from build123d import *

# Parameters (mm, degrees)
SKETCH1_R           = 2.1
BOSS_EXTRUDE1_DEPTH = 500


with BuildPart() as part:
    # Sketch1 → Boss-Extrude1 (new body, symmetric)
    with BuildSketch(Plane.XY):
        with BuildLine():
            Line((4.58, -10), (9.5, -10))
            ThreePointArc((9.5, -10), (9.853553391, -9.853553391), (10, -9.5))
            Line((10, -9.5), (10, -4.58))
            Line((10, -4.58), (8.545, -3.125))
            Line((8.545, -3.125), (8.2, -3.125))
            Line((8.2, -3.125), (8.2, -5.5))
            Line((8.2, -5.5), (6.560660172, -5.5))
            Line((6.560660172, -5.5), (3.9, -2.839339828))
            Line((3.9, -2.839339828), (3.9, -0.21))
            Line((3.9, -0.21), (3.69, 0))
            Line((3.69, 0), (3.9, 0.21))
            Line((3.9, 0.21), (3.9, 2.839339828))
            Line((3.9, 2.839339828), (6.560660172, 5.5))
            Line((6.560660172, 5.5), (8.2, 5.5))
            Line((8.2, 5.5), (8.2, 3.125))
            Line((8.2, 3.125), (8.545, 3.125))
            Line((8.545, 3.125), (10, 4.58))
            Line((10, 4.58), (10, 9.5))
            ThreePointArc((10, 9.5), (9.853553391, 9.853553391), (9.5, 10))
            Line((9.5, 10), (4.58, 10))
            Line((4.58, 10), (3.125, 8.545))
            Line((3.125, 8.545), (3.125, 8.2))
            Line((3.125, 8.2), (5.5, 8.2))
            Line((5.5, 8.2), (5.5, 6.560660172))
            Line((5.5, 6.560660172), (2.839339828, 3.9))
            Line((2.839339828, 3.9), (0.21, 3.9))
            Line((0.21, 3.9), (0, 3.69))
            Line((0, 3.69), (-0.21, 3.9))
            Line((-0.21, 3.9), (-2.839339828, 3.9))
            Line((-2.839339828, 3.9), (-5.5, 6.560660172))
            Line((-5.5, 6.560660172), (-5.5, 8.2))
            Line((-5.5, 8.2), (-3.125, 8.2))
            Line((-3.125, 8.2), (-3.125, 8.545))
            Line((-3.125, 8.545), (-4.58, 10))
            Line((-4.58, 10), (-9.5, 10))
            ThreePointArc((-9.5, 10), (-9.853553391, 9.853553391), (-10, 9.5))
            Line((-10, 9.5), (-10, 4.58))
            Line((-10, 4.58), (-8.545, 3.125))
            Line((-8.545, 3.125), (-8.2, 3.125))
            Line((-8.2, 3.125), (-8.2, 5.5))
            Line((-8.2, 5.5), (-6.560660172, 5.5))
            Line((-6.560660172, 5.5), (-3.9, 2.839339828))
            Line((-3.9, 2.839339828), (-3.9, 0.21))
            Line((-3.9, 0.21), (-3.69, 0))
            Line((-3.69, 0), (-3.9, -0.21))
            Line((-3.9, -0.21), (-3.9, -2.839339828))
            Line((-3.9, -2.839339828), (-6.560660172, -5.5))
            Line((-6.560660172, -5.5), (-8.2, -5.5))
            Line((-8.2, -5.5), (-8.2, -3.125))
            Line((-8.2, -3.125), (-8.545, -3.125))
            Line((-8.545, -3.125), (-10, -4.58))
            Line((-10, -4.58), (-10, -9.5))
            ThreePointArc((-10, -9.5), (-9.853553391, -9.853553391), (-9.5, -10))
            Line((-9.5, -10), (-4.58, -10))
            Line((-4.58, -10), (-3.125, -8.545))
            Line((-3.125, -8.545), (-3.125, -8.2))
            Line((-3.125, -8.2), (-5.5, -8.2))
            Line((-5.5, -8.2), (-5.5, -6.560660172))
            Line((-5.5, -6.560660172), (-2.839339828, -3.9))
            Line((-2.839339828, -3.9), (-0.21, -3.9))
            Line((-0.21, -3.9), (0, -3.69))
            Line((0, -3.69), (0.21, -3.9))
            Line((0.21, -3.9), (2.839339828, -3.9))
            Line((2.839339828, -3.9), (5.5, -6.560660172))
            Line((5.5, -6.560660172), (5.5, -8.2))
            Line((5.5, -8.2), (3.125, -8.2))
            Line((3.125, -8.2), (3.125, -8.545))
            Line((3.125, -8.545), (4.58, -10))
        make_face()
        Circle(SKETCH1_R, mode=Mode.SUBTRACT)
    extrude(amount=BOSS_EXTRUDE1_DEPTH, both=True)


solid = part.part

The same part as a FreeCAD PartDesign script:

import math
import FreeCAD as App
import Part
import Sketcher

V = App.Vector
Q = App.Units.Quantity

doc = App.newDocument("Part")
body = doc.addObject("PartDesign::Body", "Body")

# Sketch on XY plane
sketch1 = body.newObject("Sketcher::SketchObject", "Sketch")
sketch1.AttachmentSupport = (doc.getObject("XY_Plane"), [""])
sketch1.MapMode = "FlatFace"
sketch1.addGeometry([
    Part.LineSegment(V(4.58, -10, 0), V(9.5, -10, 0)),  # 0
    Part.ArcOfCircle(Part.Circle(V(9.5, -9.5, 0), V(0, 0, 1), 0.5), math.radians(-90), math.radians(0)),  # 1
    Part.LineSegment(V(10, -9.5, 0), V(10, -4.58, 0)),  # 2
    Part.LineSegment(V(10, -4.58, 0), V(8.54, -3.12, 0)),  # 3
    Part.LineSegment(V(8.54, -3.12, 0), V(8.2, -3.12, 0)),  # 4
    Part.LineSegment(V(8.2, -3.12, 0), V(8.2, -5.5, 0)),  # 5
    Part.LineSegment(V(8.2, -5.5, 0), V(6.56, -5.5, 0)),  # 6
    Part.LineSegment(V(6.56, -5.5, 0), V(3.9, -2.84, 0)),  # 7
    Part.LineSegment(V(3.9, -2.84, 0), V(3.9, -0.21, 0)),  # 8
    Part.LineSegment(V(3.9, -0.21, 0), V(3.69, 0, 0)),  # 9
    Part.LineSegment(V(3.69, 0, 0), V(3.9, 0.21, 0)),  # 10
    Part.LineSegment(V(3.9, 0.21, 0), V(3.9, 2.84, 0)),  # 11
    Part.LineSegment(V(3.9, 2.84, 0), V(6.56, 5.5, 0)),  # 12
    Part.LineSegment(V(6.56, 5.5, 0), V(8.2, 5.5, 0)),  # 13
    Part.LineSegment(V(8.2, 5.5, 0), V(8.2, 3.12, 0)),  # 14
    Part.LineSegment(V(8.2, 3.12, 0), V(8.54, 3.12, 0)),  # 15
    Part.LineSegment(V(8.54, 3.12, 0), V(10, 4.58, 0)),  # 16
    Part.LineSegment(V(10, 4.58, 0), V(10, 9.5, 0)),  # 17
    Part.ArcOfCircle(Part.Circle(V(9.5, 9.5, 0), V(0, 0, 1), 0.5), math.radians(0), math.radians(90)),  # 18
    Part.LineSegment(V(9.5, 10, 0), V(4.58, 10, 0)),  # 19
    Part.LineSegment(V(4.58, 10, 0), V(3.12, 8.54, 0)),  # 20
    Part.LineSegment(V(3.12, 8.54, 0), V(3.12, 8.2, 0)),  # 21
    Part.LineSegment(V(3.12, 8.2, 0), V(5.5, 8.2, 0)),  # 22
    Part.LineSegment(V(5.5, 8.2, 0), V(5.5, 6.56, 0)),  # 23
    Part.LineSegment(V(5.5, 6.56, 0), V(2.84, 3.9, 0)),  # 24
    Part.LineSegment(V(2.84, 3.9, 0), V(0.21, 3.9, 0)),  # 25
    Part.LineSegment(V(0.21, 3.9, 0), V(0, 3.69, 0)),  # 26
    Part.LineSegment(V(0, 3.69, 0), V(-0.21, 3.9, 0)),  # 27
    Part.LineSegment(V(-0.21, 3.9, 0), V(-2.84, 3.9, 0)),  # 28
    Part.LineSegment(V(-2.84, 3.9, 0), V(-5.5, 6.56, 0)),  # 29
    Part.LineSegment(V(-5.5, 6.56, 0), V(-5.5, 8.2, 0)),  # 30
    Part.LineSegment(V(-5.5, 8.2, 0), V(-3.12, 8.2, 0)),  # 31
    Part.LineSegment(V(-3.12, 8.2, 0), V(-3.12, 8.54, 0)),  # 32
    Part.LineSegment(V(-3.12, 8.54, 0), V(-4.58, 10, 0)),  # 33
    Part.LineSegment(V(-4.58, 10, 0), V(-9.5, 10, 0)),  # 34
    Part.ArcOfCircle(Part.Circle(V(-9.5, 9.5, 0), V(0, 0, 1), 0.5), math.radians(90), math.radians(180)),  # 35
    Part.LineSegment(V(-10, 9.5, 0), V(-10, 4.58, 0)),  # 36
    Part.LineSegment(V(-10, 4.58, 0), V(-8.54, 3.12, 0)),  # 37
    Part.LineSegment(V(-8.54, 3.12, 0), V(-8.2, 3.12, 0)),  # 38
    Part.LineSegment(V(-8.2, 3.12, 0), V(-8.2, 5.5, 0)),  # 39
    Part.LineSegment(V(-8.2, 5.5, 0), V(-6.56, 5.5, 0)),  # 40
    Part.LineSegment(V(-6.56, 5.5, 0), V(-3.9, 2.84, 0)),  # 41
    Part.LineSegment(V(-3.9, 2.84, 0), V(-3.9, 0.21, 0)),  # 42
    Part.LineSegment(V(-3.9, 0.21, 0), V(-3.69, 0, 0)),  # 43
    Part.LineSegment(V(-3.69, 0, 0), V(-3.9, -0.21, 0)),  # 44
    Part.LineSegment(V(-3.9, -0.21, 0), V(-3.9, -2.84, 0)),  # 45
    Part.LineSegment(V(-3.9, -2.84, 0), V(-6.56, -5.5, 0)),  # 46
    Part.LineSegment(V(-6.56, -5.5, 0), V(-8.2, -5.5, 0)),  # 47
    Part.LineSegment(V(-8.2, -5.5, 0), V(-8.2, -3.12, 0)),  # 48
    Part.LineSegment(V(-8.2, -3.12, 0), V(-8.54, -3.12, 0)),  # 49
    Part.LineSegment(V(-8.54, -3.12, 0), V(-10, -4.58, 0)),  # 50
    Part.LineSegment(V(-10, -4.58, 0), V(-10, -9.5, 0)),  # 51
    Part.ArcOfCircle(Part.Circle(V(-9.5, -9.5, 0), V(0, 0, 1), 0.5), math.radians(180), math.radians(270)),  # 52
    Part.LineSegment(V(-9.5, -10, 0), V(-4.58, -10, 0)),  # 53
    Part.LineSegment(V(-4.58, -10, 0), V(-3.12, -8.54, 0)),  # 54
    Part.LineSegment(V(-3.12, -8.54, 0), V(-3.12, -8.2, 0)),  # 55
    Part.LineSegment(V(-3.12, -8.2, 0), V(-5.5, -8.2, 0)),  # 56
    Part.LineSegment(V(-5.5, -8.2, 0), V(-5.5, -6.56, 0)),  # 57
    Part.LineSegment(V(-5.5, -6.56, 0), V(-2.84, -3.9, 0)),  # 58
    Part.LineSegment(V(-2.84, -3.9, 0), V(-0.21, -3.9, 0)),  # 59
    Part.LineSegment(V(-0.21, -3.9, 0), V(0, -3.69, 0)),  # 60
    Part.LineSegment(V(0, -3.69, 0), V(0.21, -3.9, 0)),  # 61
    Part.LineSegment(V(0.21, -3.9, 0), V(2.84, -3.9, 0)),  # 62
    Part.LineSegment(V(2.84, -3.9, 0), V(5.5, -6.56, 0)),  # 63
    Part.LineSegment(V(5.5, -6.56, 0), V(5.5, -8.2, 0)),  # 64
    Part.LineSegment(V(5.5, -8.2, 0), V(3.12, -8.2, 0)),  # 65
    Part.LineSegment(V(3.12, -8.2, 0), V(3.12, -8.54, 0)),  # 66
    Part.LineSegment(V(3.12, -8.54, 0), V(4.58, -10, 0)),  # 67
    Part.Circle(V(0, 0, 0), V(0, 0, 1), 2.1),  # 68
], False)
sketch1.addConstraint([
    Sketcher.Constraint("Tangent", 0, 2, 1, 1),
    Sketcher.Constraint("Tangent", 1, 2, 2, 1),
    Sketcher.Constraint("Coincident", 2, 2, 3, 1),
    Sketcher.Constraint("Coincident", 3, 2, 4, 1),
    Sketcher.Constraint("Coincident", 4, 2, 5, 1),
    Sketcher.Constraint("Coincident", 5, 2, 6, 1),
    Sketcher.Constraint("Coincident", 6, 2, 7, 1),
    Sketcher.Constraint("Coincident", 7, 2, 8, 1),
    Sketcher.Constraint("Coincident", 8, 2, 9, 1),
    Sketcher.Constraint("Coincident", 9, 2, 10, 1),
    Sketcher.Constraint("Coincident", 10, 2, 11, 1),
    Sketcher.Constraint("Coincident", 11, 2, 12, 1),
    Sketcher.Constraint("Coincident", 12, 2, 13, 1),
    Sketcher.Constraint("Coincident", 13, 2, 14, 1),
    Sketcher.Constraint("Coincident", 14, 2, 15, 1),
    Sketcher.Constraint("Coincident", 15, 2, 16, 1),
    Sketcher.Constraint("Coincident", 16, 2, 17, 1),
    Sketcher.Constraint("Tangent", 17, 2, 18, 1),
    Sketcher.Constraint("Tangent", 18, 2, 19, 1),
    Sketcher.Constraint("Coincident", 19, 2, 20, 1),
    Sketcher.Constraint("Coincident", 20, 2, 21, 1),
    Sketcher.Constraint("Coincident", 21, 2, 22, 1),
    Sketcher.Constraint("Coincident", 22, 2, 23, 1),
    Sketcher.Constraint("Coincident", 23, 2, 24, 1),
    Sketcher.Constraint("Coincident", 24, 2, 25, 1),
    Sketcher.Constraint("Coincident", 25, 2, 26, 1),
    Sketcher.Constraint("Coincident", 26, 2, 27, 1),
    Sketcher.Constraint("Coincident", 27, 2, 28, 1),
    Sketcher.Constraint("Coincident", 28, 2, 29, 1),
    Sketcher.Constraint("Coincident", 29, 2, 30, 1),
    Sketcher.Constraint("Coincident", 30, 2, 31, 1),
    Sketcher.Constraint("Coincident", 31, 2, 32, 1),
    Sketcher.Constraint("Coincident", 32, 2, 33, 1),
    Sketcher.Constraint("Coincident", 33, 2, 34, 1),
    Sketcher.Constraint("Tangent", 34, 2, 35, 1),
    Sketcher.Constraint("Tangent", 35, 2, 36, 1),
    Sketcher.Constraint("Coincident", 36, 2, 37, 1),
    Sketcher.Constraint("Coincident", 37, 2, 38, 1),
    Sketcher.Constraint("Coincident", 38, 2, 39, 1),
    Sketcher.Constraint("Coincident", 39, 2, 40, 1),
    Sketcher.Constraint("Coincident", 40, 2, 41, 1),
    Sketcher.Constraint("Coincident", 41, 2, 42, 1),
    Sketcher.Constraint("Coincident", 42, 2, 43, 1),
    Sketcher.Constraint("Coincident", 43, 2, 44, 1),
    Sketcher.Constraint("Coincident", 44, 2, 45, 1),
    Sketcher.Constraint("Coincident", 45, 2, 46, 1),
    Sketcher.Constraint("Coincident", 46, 2, 47, 1),
    Sketcher.Constraint("Coincident", 47, 2, 48, 1),
    Sketcher.Constraint("Coincident", 48, 2, 49, 1),
    Sketcher.Constraint("Coincident", 49, 2, 50, 1),
    Sketcher.Constraint("Coincident", 50, 2, 51, 1),
    Sketcher.Constraint("Tangent", 51, 2, 52, 1),
    Sketcher.Constraint("Tangent", 52, 2, 53, 1),
    Sketcher.Constraint("Coincident", 53, 2, 54, 1),
    Sketcher.Constraint("Coincident", 54, 2, 55, 1),
    Sketcher.Constraint("Coincident", 55, 2, 56, 1),
    Sketcher.Constraint("Coincident", 56, 2, 57, 1),
    Sketcher.Constraint("Coincident", 57, 2, 58, 1),
    Sketcher.Constraint("Coincident", 58, 2, 59, 1),
    Sketcher.Constraint("Coincident", 59, 2, 60, 1),
    Sketcher.Constraint("Coincident", 60, 2, 61, 1),
    Sketcher.Constraint("Coincident", 61, 2, 62, 1),
    Sketcher.Constraint("Coincident", 62, 2, 63, 1),
    Sketcher.Constraint("Coincident", 63, 2, 64, 1),
    Sketcher.Constraint("Coincident", 64, 2, 65, 1),
    Sketcher.Constraint("Coincident", 65, 2, 66, 1),
    Sketcher.Constraint("Coincident", 66, 2, 67, 1),
    Sketcher.Constraint("Coincident", 67, 2, 0, 1),
    Sketcher.Constraint("Horizontal", 0),
    Sketcher.Constraint("Vertical", 2),
    Sketcher.Constraint("Horizontal", 4),
    Sketcher.Constraint("Vertical", 5),
    Sketcher.Constraint("Horizontal", 6),
    Sketcher.Constraint("Vertical", 8),
    Sketcher.Constraint("Vertical", 11),
    Sketcher.Constraint("Horizontal", 13),
    Sketcher.Constraint("Vertical", 14),
    Sketcher.Constraint("Horizontal", 15),
    Sketcher.Constraint("Vertical", 17),
    Sketcher.Constraint("Horizontal", 19),
    Sketcher.Constraint("Vertical", 21),
    Sketcher.Constraint("Horizontal", 22),
    Sketcher.Constraint("Vertical", 23),
    Sketcher.Constraint("Horizontal", 25),
    Sketcher.Constraint("Horizontal", 28),
    Sketcher.Constraint("Vertical", 30),
    Sketcher.Constraint("Horizontal", 31),
    Sketcher.Constraint("Vertical", 32),
    Sketcher.Constraint("Horizontal", 34),
    Sketcher.Constraint("Vertical", 36),
    Sketcher.Constraint("Horizontal", 38),
    Sketcher.Constraint("Vertical", 39),
    Sketcher.Constraint("Horizontal", 40),
    Sketcher.Constraint("Vertical", 42),
    Sketcher.Constraint("Vertical", 45),
    Sketcher.Constraint("Horizontal", 47),
    Sketcher.Constraint("Vertical", 48),
    Sketcher.Constraint("Horizontal", 49),
    Sketcher.Constraint("Vertical", 51),
    Sketcher.Constraint("Horizontal", 53),
    Sketcher.Constraint("Vertical", 55),
    Sketcher.Constraint("Horizontal", 56),
    Sketcher.Constraint("Vertical", 57),
    Sketcher.Constraint("Horizontal", 59),
    Sketcher.Constraint("Horizontal", 62),
    Sketcher.Constraint("Vertical", 64),
    Sketcher.Constraint("Horizontal", 65),
    Sketcher.Constraint("Vertical", 66),
    Sketcher.Constraint("Coincident", 68, 3, -1, 1),
    Sketcher.Constraint("Equal", 1, 18),
    Sketcher.Constraint("Equal", 18, 35),
    Sketcher.Constraint("Equal", 35, 52),
    Sketcher.Constraint("Symmetric", 1, 3, 35, 3, -1, 1),
    Sketcher.Constraint("Symmetric", 18, 3, 52, 3, -1, 1),
    Sketcher.Constraint("Symmetric", 3, 2, 37, 2, -1, 1),
    Sketcher.Constraint("Symmetric", 5, 2, 39, 2, -1, 1),
    Sketcher.Constraint("Symmetric", 7, 2, 41, 2, -1, 1),
    Sketcher.Constraint("Symmetric", 9, 2, 43, 2, -1, 1),
    Sketcher.Constraint("Symmetric", 10, 2, 44, 2, -1, 1),
    Sketcher.Constraint("Symmetric", 12, 2, 46, 2, -1, 1),
    Sketcher.Constraint("Symmetric", 14, 2, 48, 2, -1, 1),
    Sketcher.Constraint("Symmetric", 20, 2, 54, 2, -1, 1),
    Sketcher.Constraint("Symmetric", 22, 2, 56, 2, -1, 1),
    Sketcher.Constraint("Symmetric", 24, 2, 58, 2, -1, 1),
    Sketcher.Constraint("Symmetric", 26, 2, 60, 2, -1, 1),
    Sketcher.Constraint("Symmetric", 27, 2, 61, 2, -1, 1),
    Sketcher.Constraint("Symmetric", 29, 2, 63, 2, -1, 1),
    Sketcher.Constraint("Symmetric", 31, 2, 65, 2, -1, 1),
    Sketcher.Constraint("Symmetric", 18, 3, 35, 3, -2),
    Sketcher.Constraint("Symmetric", 25, 2, 27, 2, -2),
    Sketcher.Constraint("Symmetric", 23, 2, 29, 2, -2),
    Sketcher.Constraint("Symmetric", 21, 2, 31, 2, -2),
    Sketcher.Constraint("Symmetric", 15, 2, 37, 2, -2),
    Sketcher.Constraint("Symmetric", 13, 2, 39, 2, -2),
    Sketcher.Constraint("Symmetric", 11, 2, 41, 2, -2),
    Sketcher.Constraint("PointOnObject", 9, 2, -1),
    Sketcher.Constraint("PointOnObject", 26, 2, -2),
    Sketcher.Constraint("Parallel", 3, 7),
    Sketcher.Constraint("Parallel", 7, 9),
    Sketcher.Constraint("Perpendicular", 9, 10),
    Sketcher.Constraint("Parallel", 10, 12),
    Sketcher.Constraint("Parallel", 12, 16),
    Sketcher.Constraint("Parallel", 16, 20),
    Sketcher.Constraint("Parallel", 20, 24),
    Sketcher.Constraint("Parallel", 24, 26),
    Sketcher.Constraint("Perpendicular", 26, 27),
    Sketcher.Constraint("Parallel", 27, 29),
    Sketcher.Constraint("Parallel", 29, 33),
    Sketcher.Constraint("Parallel", 33, 37),
    Sketcher.Constraint("Parallel", 37, 41),
    Sketcher.Constraint("Parallel", 41, 43),
    Sketcher.Constraint("Parallel", 44, 46),
    Sketcher.Constraint("Parallel", 46, 50),
    Sketcher.Constraint("Parallel", 50, 54),
    Sketcher.Constraint("Parallel", 54, 58),
    Sketcher.Constraint("Parallel", 58, 60),
    Sketcher.Constraint("Parallel", 61, 63),
    Sketcher.Constraint("Parallel", 63, 67),
    Sketcher.Constraint("Horizontal", 20, 2, 32, 2),
    Sketcher.Constraint("Horizontal", 2, 2, 50, 2),
    Sketcher.Constraint("Horizontal", 54, 2, 66, 2),
    Sketcher.Constraint("Equal", 53, 2),
    Sketcher.Constraint("Equal", 65, 5),
    Sketcher.Constraint("Equal", 62, 8),
    Sketcher.Constraint("Equal", 49, 21),
    Sketcher.Constraint("Equal", 47, 23),
    Sketcher.Constraint("Equal", 16, 20),
    Sketcher.Constraint("Equal", 12, 24),
    Sketcher.Constraint("Equal", 10, 26),
    Sketcher.Constraint("Diameter", 68, Q("4.2 mm")),
    Sketcher.Constraint("Radius", 1, Q("0.5 mm")),
    Sketcher.Constraint("DistanceY", 0, 2, -1, 1, Q("10 mm")),
    Sketcher.Constraint("DistanceX", 0, 1, 0, 2, Q("4.92 mm")),
    Sketcher.Constraint("DistanceX", -1, 1, 4, 2, Q("8.2 mm")),
    Sketcher.Constraint("DistanceY", 5, 2, -1, 1, Q("5.5 mm")),
    Sketcher.Constraint("DistanceX", -1, 1, 7, 2, Q("3.9 mm")),
    Sketcher.Constraint("DistanceX", 4, 2, 4, 1, Q("0.345 mm")),
    Sketcher.Constraint("DistanceY", 8, 2, -1, 1, Q("0.21 mm")),
    Sketcher.Constraint("DistanceX", 6, 2, 6, 1, Q("1.63934 mm")),
])
pad1 = body.newObject("PartDesign::Pad", "Pad")
pad1.Profile = sketch1
pad1.Length = 1000
pad1.Midplane = True

doc.recompute()
